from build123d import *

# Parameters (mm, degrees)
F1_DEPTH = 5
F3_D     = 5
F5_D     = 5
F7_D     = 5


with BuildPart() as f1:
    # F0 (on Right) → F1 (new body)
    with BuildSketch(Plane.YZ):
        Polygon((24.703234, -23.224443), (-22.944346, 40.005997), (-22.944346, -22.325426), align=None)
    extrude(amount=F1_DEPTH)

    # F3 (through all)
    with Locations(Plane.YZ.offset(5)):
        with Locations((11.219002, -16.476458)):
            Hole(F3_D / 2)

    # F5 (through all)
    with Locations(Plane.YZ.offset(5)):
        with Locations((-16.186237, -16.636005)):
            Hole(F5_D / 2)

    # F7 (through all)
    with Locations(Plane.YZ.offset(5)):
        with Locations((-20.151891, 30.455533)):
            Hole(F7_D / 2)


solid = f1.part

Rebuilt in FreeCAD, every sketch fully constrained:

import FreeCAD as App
import Part
import Sketcher

V = App.Vector
Q = App.Units.Quantity

doc = App.newDocument("Part")
body = doc.addObject("PartDesign::Body", "Body")

# Sketch on YZ plane
sketch1 = body.newObject("Sketcher::SketchObject", "Sketch")
sketch1.AttachmentSupport = (doc.getObject("YZ_Plane"), [""])
sketch1.MapMode = "FlatFace"
sketch1.addGeometry([
    Part.LineSegment(V(25, -23, 0), V(-23, 40, 0)),
    Part.LineSegment(V(-23, 40, 0), V(-23, -22, 0)),
    Part.LineSegment(V(-23, -22, 0), V(25, -23, 0)),
], False)
sketch1.addConstraint([
    Sketcher.Constraint("Coincident", 0, 2, 1, 1),
    Sketcher.Constraint("Coincident", 1, 2, 2, 1),
    Sketcher.Constraint("Coincident", 2, 2, 0, 1),
    Sketcher.Constraint("Vertical", 1),
    Sketcher.Constraint("Angle", 0, Q("127.000015 deg")),
    Sketcher.Constraint("Distance", 2, 47.656061),
    Sketcher.Constraint("DistanceY", 1, 2, 1, 1, 62.331423),
    Sketcher.Constraint("DistanceX", 0, 2, -1, 1, 22.944346),
    Sketcher.Constraint("DistanceY", -1, 1, 0, 2, 40.005997),
])
pad1 = body.newObject("PartDesign::Pad", "Pad")
pad1.Profile = sketch1
pad1.Length = 5

# Sketch on YZ plane
sketch2 = body.newObject("Sketcher::SketchObject", "Sketch001")
sketch2.AttachmentSupport = (doc.getObject("YZ_Plane"), [""])
sketch2.MapMode = "FlatFace"
sketch2.AttachmentOffset = App.Placement(V(0, 0, 5), App.Rotation())
sketch2.addGeometry(Part.Circle(V(11.2, -16.5, 0), V(0, 0, 1), 2.5), False)
sketch2.addConstraint([
    Sketcher.Constraint("Diameter", 0, 5.0),
    Sketcher.Constraint("DistanceY", 0, 3, -1, 1, 16.476458),
    Sketcher.Constraint("DistanceX", -1, 1, 0, 3, 11.219002),
])
doc.recompute()
hole = body.newObject("PartDesign::Hole", "Hole")
hole.Profile = sketch2
hole.ThreadType = "None"
hole.Diameter = 5
hole.DepthType = "ThroughAll"

# Sketch on YZ plane
sketch3 = body.newObject("Sketcher::SketchObject", "Sketch002")
sketch3.AttachmentSupport = (doc.getObject("YZ_Plane"), [""])
sketch3.MapMode = "FlatFace"
sketch3.AttachmentOffset = App.Placement(V(0, 0, 5), App.Rotation())
sketch3.addGeometry(Part.Circle(V(-16.2, -16.6, 0), V(0, 0, 1), 2.5), False)
sketch3.addConstraint([
    Sketcher.Constraint("Diameter", 0, 5.0),
    Sketcher.Constraint("DistanceX", 0, 3, -1, 1, 16.186237),
    Sketcher.Constraint("DistanceY", 0, 3, -1, 1, 16.636005),
])
doc.recompute()
hole2 = body.newObject("PartDesign::Hole", "Hole001")
hole2.Profile = sketch3
hole2.ThreadType = "None"
hole2.Diameter = 5
hole2.DepthType = "ThroughAll"

# Sketch on YZ plane
sketch4 = body.newObject("Sketcher::SketchObject", "Sketch003")
sketch4.AttachmentSupport = (doc.getObject("YZ_Plane"), [""])
sketch4.MapMode = "FlatFace"
sketch4.AttachmentOffset = App.Placement(V(0, 0, 5), App.Rotation())
sketch4.addGeometry(Part.Circle(V(-20.2, 30.5, 0), V(0, 0, 1), 2.5), False)
sketch4.addConstraint([
    Sketcher.Constraint("Diameter", 0, 5.0),
    Sketcher.Constraint("DistanceX", 0, 3, -1, 1, 20.151891),
    Sketcher.Constraint("DistanceY", -1, 1, 0, 3, 30.455533),
])
doc.recompute()
hole3 = body.newObject("PartDesign::Hole", "Hole002")
hole3.Profile = sketch4
hole3.ThreadType = "None"
hole3.Diameter = 5
hole3.DepthType = "ThroughAll"

doc.recompute()
